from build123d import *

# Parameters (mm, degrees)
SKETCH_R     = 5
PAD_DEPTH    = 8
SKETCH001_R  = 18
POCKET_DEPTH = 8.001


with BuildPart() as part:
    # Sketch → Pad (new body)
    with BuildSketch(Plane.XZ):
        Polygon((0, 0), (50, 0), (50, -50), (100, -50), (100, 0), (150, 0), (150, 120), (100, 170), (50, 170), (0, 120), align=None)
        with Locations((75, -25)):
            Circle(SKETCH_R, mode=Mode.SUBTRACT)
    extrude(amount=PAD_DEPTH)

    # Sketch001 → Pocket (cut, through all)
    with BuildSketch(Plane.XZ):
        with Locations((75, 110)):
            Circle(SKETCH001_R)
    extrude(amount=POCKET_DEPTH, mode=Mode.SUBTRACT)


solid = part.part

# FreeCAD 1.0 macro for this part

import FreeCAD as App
import Part
import Sketcher

V = App.Vector
Q = App.Units.Quantity

doc = App.newDocument("Part")
body = doc.addObject("PartDesign::Body", "Body")

# Sketch on XZ plane
sketch1 = body.newObject("Sketcher::SketchObject", "Sketch")
sketch1.AttachmentSupport = (doc.getObject("XZ_Plane"), [""])
sketch1.MapMode = "FlatFace"
sketch1.addGeometry([
    Part.LineSegment(V(0, 0, 0), V(50, 0, 0)),  # 0
    Part.LineSegment(V(50, 0, 0), V(50, -50, 0)),  # 1
    Part.LineSegment(V(50, -50, 0), V(100, -50, 0)),  # 2
    Part.LineSegment(V(100, -50, 0), V(100, 0, 0)),  # 3
    Part.LineSegment(V(100, 0, 0), V(150, 0, 0)),  # 4
    Part.LineSegment(V(150, 0, 0), V(150, 120, 0)),  # 5
    Part.LineSegment(V(150, 120, 0), V(100, 170, 0)),  # 6
    Part.LineSegment(V(100, 170, 0), V(50, 170, 0)),  # 7
    Part.LineSegment(V(50, 170, 0), V(0, 120, 0)),  # 8
    Part.LineSegment(V(0, 120, 0), V(0, 0, 0)),  # 9
    Part.Circle(V(75, -25, 0), V(0, 0, 1), 5),  # 10
], False)
sketch1.addConstraint([
    Sketcher.Constraint("Coincident", 0, 2, 1, 1),
    Sketcher.Constraint("Coincident", 1, 2, 2, 1),
    Sketcher.Constraint("Coincident", 2, 2, 3, 1),
    Sketcher.Constraint("Coincident", 3, 2, 4, 1),
    Sketcher.Constraint("Coincident", 4, 2, 5, 1),
    Sketcher.Constraint("Coincident", 5, 2, 6, 1),
    Sketcher.Constraint("Coincident", 6, 2, 7, 1),
    Sketcher.Constraint("Coincident", 7, 2, 8, 1),
    Sketcher.Constraint("Coincident", 8, 2, 9, 1),
    Sketcher.Constraint("Coincident", 9, 2, 0, 1),
    Sketcher.Constraint("Horizontal", 0),
    Sketcher.Constraint("Vertical", 1),
    Sketcher.Constraint("Horizontal", 2),
    Sketcher.Constraint("Vertical", 3),
    Sketcher.Constraint("Horizontal", 4),
    Sketcher.Constraint("Vertical", 5),
    Sketcher.Constraint("Horizontal", 7),
    Sketcher.Constraint("Vertical", 9),
    Sketcher.Constraint("Coincident", 9, 2, -1, 1),
    Sketcher.Constraint("PointOnObject", 3, 2, -1),
    Sketcher.Constraint("Perpendicular", 6, 8),
    Sketcher.Constraint("Horizontal", 5, 2, 8, 2),
    Sketcher.Constraint("Vertical", 3, 2, 6, 2),
    Sketcher.Constraint("Vertical", 1, 2, 7, 2),
    Sketcher.Constraint("Equal", 0, 2),
    Sketcher.Constraint("Equal", 2, 4),
    Sketcher.Constraint("Equal", 7, 1),
    Sketcher.Constraint("Diameter", 10, Q("10 mm")),
    Sketcher.Constraint("DistanceX", 0, 1, 0, 2, Q("50 mm")),
    Sketcher.Constraint("DistanceY", 5, 1, 5, 2, Q("120 mm")),
    Sketcher.Constraint("DistanceX", -1, 1, 10, 3, Q("75 mm")),
    Sketcher.Constraint("DistanceY", 10, 3, -1, 1, Q("25 mm")),
])
pad1 = body.newObject("PartDesign::Pad", "Pad")
pad1.Profile = sketch1
pad1.Length = 8

# Sketch on XZ plane
sketch2 = body.newObject("Sketcher::SketchObject", "Sketch001")
sketch2.AttachmentSupport = (doc.getObject("XZ_Plane"), [""])
sketch2.MapMode = "FlatFace"
sketch2.addGeometry(Part.Circle(V(75, 110, 0), V(0, 0, 1), 18), False)
sketch2.addConstraint([
    Sketcher.Constraint("Diameter", 0, Q("36 mm")),
    Sketcher.Constraint("DistanceX", -1, 1, 0, 3, Q("75 mm")),
    Sketcher.Constraint("DistanceY", -1, 1, 0, 3, Q("110 mm")),
])
pocket1 = body.newObject("PartDesign::Pocket", "Pocket")
pocket1.Profile = sketch2
pocket1.Type = "ThroughAll"
pocket1.Reversed = True

doc.recompute()
